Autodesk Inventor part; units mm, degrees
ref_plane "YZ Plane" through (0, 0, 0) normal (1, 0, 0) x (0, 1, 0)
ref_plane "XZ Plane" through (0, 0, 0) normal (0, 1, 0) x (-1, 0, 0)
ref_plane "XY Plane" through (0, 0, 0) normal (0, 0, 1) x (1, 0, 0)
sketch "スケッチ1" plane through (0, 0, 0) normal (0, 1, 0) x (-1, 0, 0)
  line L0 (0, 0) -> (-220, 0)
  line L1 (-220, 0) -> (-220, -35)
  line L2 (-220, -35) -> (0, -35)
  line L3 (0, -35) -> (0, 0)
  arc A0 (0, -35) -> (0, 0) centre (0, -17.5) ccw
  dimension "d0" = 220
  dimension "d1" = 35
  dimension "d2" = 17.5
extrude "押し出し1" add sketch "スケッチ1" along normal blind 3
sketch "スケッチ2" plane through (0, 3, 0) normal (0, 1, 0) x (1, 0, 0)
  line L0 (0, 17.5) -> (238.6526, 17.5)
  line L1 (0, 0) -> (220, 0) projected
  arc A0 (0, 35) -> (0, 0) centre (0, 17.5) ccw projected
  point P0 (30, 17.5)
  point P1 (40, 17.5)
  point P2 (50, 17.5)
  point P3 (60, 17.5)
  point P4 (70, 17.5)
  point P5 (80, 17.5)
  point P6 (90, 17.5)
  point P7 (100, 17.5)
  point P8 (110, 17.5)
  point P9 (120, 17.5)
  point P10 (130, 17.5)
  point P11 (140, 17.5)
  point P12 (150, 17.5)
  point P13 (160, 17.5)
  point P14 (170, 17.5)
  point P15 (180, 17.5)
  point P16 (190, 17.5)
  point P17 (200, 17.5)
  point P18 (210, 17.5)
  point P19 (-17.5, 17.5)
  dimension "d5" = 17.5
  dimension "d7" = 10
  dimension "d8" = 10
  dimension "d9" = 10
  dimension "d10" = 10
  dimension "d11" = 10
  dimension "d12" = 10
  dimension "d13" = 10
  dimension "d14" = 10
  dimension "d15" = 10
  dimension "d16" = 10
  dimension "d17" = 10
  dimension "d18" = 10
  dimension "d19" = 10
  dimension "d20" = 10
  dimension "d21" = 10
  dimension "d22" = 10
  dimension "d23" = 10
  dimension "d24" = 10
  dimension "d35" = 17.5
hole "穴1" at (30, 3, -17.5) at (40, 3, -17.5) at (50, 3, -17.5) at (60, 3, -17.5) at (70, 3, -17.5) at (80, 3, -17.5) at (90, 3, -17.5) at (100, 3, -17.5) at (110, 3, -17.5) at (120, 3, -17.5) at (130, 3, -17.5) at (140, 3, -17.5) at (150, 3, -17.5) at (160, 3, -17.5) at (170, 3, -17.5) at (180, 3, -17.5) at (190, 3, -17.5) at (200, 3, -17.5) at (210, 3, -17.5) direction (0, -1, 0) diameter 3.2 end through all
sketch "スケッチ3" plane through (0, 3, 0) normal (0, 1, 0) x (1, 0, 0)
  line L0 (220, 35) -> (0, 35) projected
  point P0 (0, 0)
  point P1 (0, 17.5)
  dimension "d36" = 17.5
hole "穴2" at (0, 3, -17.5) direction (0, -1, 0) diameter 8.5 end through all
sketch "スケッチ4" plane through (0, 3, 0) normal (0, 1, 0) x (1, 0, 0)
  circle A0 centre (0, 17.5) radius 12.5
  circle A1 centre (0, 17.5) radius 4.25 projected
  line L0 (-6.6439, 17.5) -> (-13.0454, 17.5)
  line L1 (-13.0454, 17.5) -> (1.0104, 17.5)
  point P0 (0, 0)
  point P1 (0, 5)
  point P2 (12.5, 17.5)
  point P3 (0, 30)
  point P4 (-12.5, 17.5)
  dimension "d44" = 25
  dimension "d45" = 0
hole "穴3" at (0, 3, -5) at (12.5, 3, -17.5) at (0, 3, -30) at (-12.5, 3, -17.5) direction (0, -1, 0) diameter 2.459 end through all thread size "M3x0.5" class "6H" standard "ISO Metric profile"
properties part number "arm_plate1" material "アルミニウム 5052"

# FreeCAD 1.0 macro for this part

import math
import FreeCAD as App
import Part
import Sketcher

V = App.Vector

doc = App.newDocument("Part")
body = doc.addObject("PartDesign::Body", "Body")

# Sketch on XZ plane
sketch1 = body.newObject("Sketcher::SketchObject", "Sketch")
sketch1.AttachmentSupport = (doc.getObject("XZ_Plane"), [""])
sketch1.MapMode = "FlatFace"
sketch1.addGeometry([
    Part.LineSegment(V(220, -35, 0), V(0, -35, 0)),
    Part.ArcOfCircle(Part.Circle(V(0, -18, 0), V(0, 0, 1), 18), math.radians(90), math.radians(270)),
    Part.LineSegment(V(0, 0, 0), V(220, 0, 0)),
    Part.LineSegment(V(220, 0, 0), V(220, -35, 0)),
], False)
sketch1.addConstraint([
    Sketcher.Constraint("Tangent", 0, 2, 1, 2),
    Sketcher.Constraint("Tangent", 1, 1, 2, 1),
    Sketcher.Constraint("Coincident", 2, 2, 3, 1),
    Sketcher.Constraint("Coincident", 3, 2, 0, 1),
    Sketcher.Constraint("Horizontal", 0),
    Sketcher.Constraint("Horizontal", 2),
    Sketcher.Constraint("Vertical", 3),
    Sketcher.Constraint("Coincident", 1, 1, -1, 1),
    Sketcher.Constraint("Radius", 1, 17.5),
    Sketcher.Constraint("DistanceX", 0, 2, 0, 1, 220.0),
])
pad1 = body.newObject("PartDesign::Pad", "Pad")
pad1.Profile = sketch1
pad1.Length = 3
pad1.Reversed = True

# Sketch on XZ plane
sketch2 = body.newObject("Sketcher::SketchObject", "Sketch001")
sketch2.AttachmentSupport = (doc.getObject("XZ_Plane"), [""])
sketch2.MapMode = "FlatFace"
sketch2.AttachmentOffset = App.Placement(V(0, 0, -3), App.Rotation())
sketch2.addGeometry([
    Part.Circle(V(30, -17.5, 0), V(0, 0, 1), 1.6),  # 0
    Part.Circle(V(40, -17.5, 0), V(0, 0, 1), 1.6),  # 1
    Part.Circle(V(50, -17.5, 0), V(0, 0, 1), 1.6),  # 2
    Part.Circle(V(60, -17.5, 0), V(0, 0, 1), 1.6),  # 3
    Part.Circle(V(70, -17.5, 0), V(0, 0, 1), 1.6),  # 4
    Part.Circle(V(80, -17.5, 0), V(0, 0, 1), 1.6),  # 5
    Part.Circle(V(90, -17.5, 0), V(0, 0, 1), 1.6),  # 6
    Part.Circle(V(100, -17.5, 0), V(0, 0, 1), 1.6),  # 7
    Part.Circle(V(110, -17.5, 0), V(0, 0, 1), 1.6),  # 8
    Part.Circle(V(120, -17.5, 0), V(0, 0, 1), 1.6),  # 9
    Part.Circle(V(130, -17.5, 0), V(0, 0, 1), 1.6),  # 10
    Part.Circle(V(140, -17.5, 0), V(0, 0, 1), 1.6),  # 11
    Part.Circle(V(150, -17.5, 0), V(0, 0, 1), 1.6),  # 12
    Part.Circle(V(160, -17.5, 0), V(0, 0, 1), 1.6),  # 13
    Part.Circle(V(170, -17.5, 0), V(0, 0, 1), 1.6),  # 14
    Part.Circle(V(180, -17.5, 0), V(0, 0, 1), 1.6),  # 15
    Part.Circle(V(190, -17.5, 0), V(0, 0, 1), 1.6),  # 16
    Part.Circle(V(200, -17.5, 0), V(0, 0, 1), 1.6),  # 17
    Part.Circle(V(210, -17.5, 0), V(0, 0, 1), 1.6),  # 18
], False)
sketch2.addConstraint([
    Sketcher.Constraint("Equal", 0, 1),
    Sketcher.Constraint("Equal", 1, 2),
    Sketcher.Constraint("Equal", 2, 3),
    Sketcher.Constraint("Equal", 3, 4),
    Sketcher.Constraint("Equal", 4, 5),
    Sketcher.Constraint("Equal", 5, 6),
    Sketcher.Constraint("Equal", 6, 7),
    Sketcher.Constraint("Equal", 7, 8),
    Sketcher.Constraint("Equal", 8, 9),
    Sketcher.Constraint("Equal", 9, 10),
    Sketcher.Constraint("Equal", 10, 11),
    Sketcher.Constraint("Equal", 11, 12),
    Sketcher.Constraint("Equal", 12, 13),
    Sketcher.Constraint("Equal", 13, 14),
    Sketcher.Constraint("Equal", 14, 15),
    Sketcher.Constraint("Equal", 15, 16),
    Sketcher.Constraint("Equal", 16, 17),
    Sketcher.Constraint("Equal", 17, 18),
    Sketcher.Constraint("Horizontal", 0, 3, 1, 3),
    Sketcher.Constraint("Horizontal", 1, 3, 2, 3),
    Sketcher.Constraint("Horizontal", 2, 3, 3, 3),
    Sketcher.Constraint("Horizontal", 3, 3, 4, 3),
    Sketcher.Constraint("Horizontal", 4, 3, 5, 3),
    Sketcher.Constraint("Horizontal", 5, 3, 6, 3),
    Sketcher.Constraint("Horizontal", 6, 3, 7, 3),
    Sketcher.Constraint("Horizontal", 7, 3, 8, 3),
    Sketcher.Constraint("Horizontal", 8, 3, 9, 3),
    Sketcher.Constraint("Horizontal", 9, 3, 10, 3),
    Sketcher.Constraint("Horizontal", 10, 3, 11, 3),
    Sketcher.Constraint("Horizontal", 11, 3, 12, 3),
    Sketcher.Constraint("Horizontal", 12, 3, 13, 3),
    Sketcher.Constraint("Horizontal", 13, 3, 14, 3),
    Sketcher.Constraint("Horizontal", 14, 3, 15, 3),
    Sketcher.Constraint("Horizontal", 15, 3, 16, 3),
    Sketcher.Constraint("Horizontal", 16, 3, 17, 3),
    Sketcher.Constraint("Horizontal", 17, 3, 18, 3),
    Sketcher.Constraint("Diameter", 0, 3.2),
    Sketcher.Constraint("DistanceX", -1, 1, 0, 3, 30.0),
    Sketcher.Constraint("DistanceX", -1, 1, 1, 3, 40.0),
    Sketcher.Constraint("DistanceX", -1, 1, 2, 3, 50.0),
    Sketcher.Constraint("DistanceX", -1, 1, 3, 3, 60.0),
    Sketcher.Constraint("DistanceX", -1, 1, 4, 3, 70.0),
    Sketcher.Constraint("DistanceX", -1, 1, 5, 3, 80.0),
    Sketcher.Constraint("DistanceX", -1, 1, 6, 3, 90.0),
    Sketcher.Constraint("DistanceX", -1, 1, 7, 3, 100.0),
    Sketcher.Constraint("DistanceX", -1, 1, 8, 3, 110.0),
    Sketcher.Constraint("DistanceX", -1, 1, 9, 3, 120.0),
    Sketcher.Constraint("DistanceX", -1, 1, 10, 3, 130.0),
    Sketcher.Constraint("DistanceX", -1, 1, 11, 3, 140.0),
    Sketcher.Constraint("DistanceX", -1, 1, 12, 3, 150.0),
    Sketcher.Constraint("DistanceX", -1, 1, 13, 3, 160.0),
    Sketcher.Constraint("DistanceX", -1, 1, 14, 3, 170.0),
    Sketcher.Constraint("DistanceX", -1, 1, 15, 3, 180.0),
    Sketcher.Constraint("DistanceX", -1, 1, 16, 3, 190.0),
    Sketcher.Constraint("DistanceX", -1, 1, 17, 3, 200.0),
    Sketcher.Constraint("DistanceX", -1, 1, 18, 3, 210.0),
    Sketcher.Constraint("DistanceY", 0, 3, -1, 1, 17.5),
])
doc.recompute()
hole = body.newObject("PartDesign::Hole", "Hole")
hole.Profile = sketch2
hole.ThreadType = "None"
hole.Diameter = 3.2
hole.DepthType = "ThroughAll"
hole.Reversed = True

# Sketch on XZ plane
sketch3 = body.newObject("Sketcher::SketchObject", "Sketch002")
sketch3.AttachmentSupport = (doc.getObject("XZ_Plane"), [""])
sketch3.MapMode = "FlatFace"
sketch3.AttachmentOffset = App.Placement(V(0, 0, -3), App.Rotation())
sketch3.addGeometry(Part.Circle(V(0, -17.5, 0), V(0, 0, 1), 4.2), False)
sketch3.addConstraint([
    Sketcher.Constraint("PointOnObject", 0, 3, -2),
    Sketcher.Constraint("Diameter", 0, 8.5),
    Sketcher.Constraint("DistanceY", 0, 3, -1, 1, 17.5),
])
doc.recompute()
hole2 = body.newObject("PartDesign::Hole", "Hole001")
hole2.Profile = sketch3
hole2.ThreadType = "None"
hole2.Diameter = 8.5
hole2.DepthType = "ThroughAll"
hole2.Reversed = True

# Sketch on XZ plane
sketch4 = body.newObject("Sketcher::SketchObject", "Sketch003")
sketch4.AttachmentSupport = (doc.getObject("XZ_Plane"), [""])
sketch4.MapMode = "FlatFace"
sketch4.AttachmentOffset = App.Placement(V(0, 0, -3), App.Rotation())
sketch4.addGeometry([
    Part.Circle(V(0, -5, 0), V(0, 0, 1), 1.2),
    Part.Circle(V(12.5, -17.5, 0), V(0, 0, 1), 1.2),
    Part.Circle(V(0, -30, 0), V(0, 0, 1), 1.2),
    Part.Circle(V(-12.5, -17.5, 0), V(0, 0, 1), 1.2),
], False)
sketch4.addConstraint([
    Sketcher.Constraint("Equal", 0, 1),
    Sketcher.Constraint("Equal", 1, 2),
    Sketcher.Constraint("Equal", 2, 3),
    Sketcher.Constraint("Symmetric", 1, 3, 3, 3, -2),
    Sketcher.Constraint("PointOnObject", 0, 3, -2),
    Sketcher.Constraint("PointOnObject", 2, 3, -2),
    Sketcher.Constraint("Diameter", 0, 2.459),
    Sketcher.Constraint("DistanceY", 0, 3, -1, 1, 5.0),
    Sketcher.Constraint("DistanceY", 2, 3, -1, 1, 30.0),
    Sketcher.Constraint("DistanceX", 3, 3, 1, 3, 25.0),
    Sketcher.Constraint("DistanceY", 1, 3, -1, 1, 17.5),
])
doc.recompute()
hole3 = body.newObject("PartDesign::Hole", "Hole002")
hole3.Profile = sketch4
hole3.ThreadType = "None"
hole3.Diameter = 2.459
hole3.DepthType = "ThroughAll"
hole3.Reversed = True

doc.recompute()
